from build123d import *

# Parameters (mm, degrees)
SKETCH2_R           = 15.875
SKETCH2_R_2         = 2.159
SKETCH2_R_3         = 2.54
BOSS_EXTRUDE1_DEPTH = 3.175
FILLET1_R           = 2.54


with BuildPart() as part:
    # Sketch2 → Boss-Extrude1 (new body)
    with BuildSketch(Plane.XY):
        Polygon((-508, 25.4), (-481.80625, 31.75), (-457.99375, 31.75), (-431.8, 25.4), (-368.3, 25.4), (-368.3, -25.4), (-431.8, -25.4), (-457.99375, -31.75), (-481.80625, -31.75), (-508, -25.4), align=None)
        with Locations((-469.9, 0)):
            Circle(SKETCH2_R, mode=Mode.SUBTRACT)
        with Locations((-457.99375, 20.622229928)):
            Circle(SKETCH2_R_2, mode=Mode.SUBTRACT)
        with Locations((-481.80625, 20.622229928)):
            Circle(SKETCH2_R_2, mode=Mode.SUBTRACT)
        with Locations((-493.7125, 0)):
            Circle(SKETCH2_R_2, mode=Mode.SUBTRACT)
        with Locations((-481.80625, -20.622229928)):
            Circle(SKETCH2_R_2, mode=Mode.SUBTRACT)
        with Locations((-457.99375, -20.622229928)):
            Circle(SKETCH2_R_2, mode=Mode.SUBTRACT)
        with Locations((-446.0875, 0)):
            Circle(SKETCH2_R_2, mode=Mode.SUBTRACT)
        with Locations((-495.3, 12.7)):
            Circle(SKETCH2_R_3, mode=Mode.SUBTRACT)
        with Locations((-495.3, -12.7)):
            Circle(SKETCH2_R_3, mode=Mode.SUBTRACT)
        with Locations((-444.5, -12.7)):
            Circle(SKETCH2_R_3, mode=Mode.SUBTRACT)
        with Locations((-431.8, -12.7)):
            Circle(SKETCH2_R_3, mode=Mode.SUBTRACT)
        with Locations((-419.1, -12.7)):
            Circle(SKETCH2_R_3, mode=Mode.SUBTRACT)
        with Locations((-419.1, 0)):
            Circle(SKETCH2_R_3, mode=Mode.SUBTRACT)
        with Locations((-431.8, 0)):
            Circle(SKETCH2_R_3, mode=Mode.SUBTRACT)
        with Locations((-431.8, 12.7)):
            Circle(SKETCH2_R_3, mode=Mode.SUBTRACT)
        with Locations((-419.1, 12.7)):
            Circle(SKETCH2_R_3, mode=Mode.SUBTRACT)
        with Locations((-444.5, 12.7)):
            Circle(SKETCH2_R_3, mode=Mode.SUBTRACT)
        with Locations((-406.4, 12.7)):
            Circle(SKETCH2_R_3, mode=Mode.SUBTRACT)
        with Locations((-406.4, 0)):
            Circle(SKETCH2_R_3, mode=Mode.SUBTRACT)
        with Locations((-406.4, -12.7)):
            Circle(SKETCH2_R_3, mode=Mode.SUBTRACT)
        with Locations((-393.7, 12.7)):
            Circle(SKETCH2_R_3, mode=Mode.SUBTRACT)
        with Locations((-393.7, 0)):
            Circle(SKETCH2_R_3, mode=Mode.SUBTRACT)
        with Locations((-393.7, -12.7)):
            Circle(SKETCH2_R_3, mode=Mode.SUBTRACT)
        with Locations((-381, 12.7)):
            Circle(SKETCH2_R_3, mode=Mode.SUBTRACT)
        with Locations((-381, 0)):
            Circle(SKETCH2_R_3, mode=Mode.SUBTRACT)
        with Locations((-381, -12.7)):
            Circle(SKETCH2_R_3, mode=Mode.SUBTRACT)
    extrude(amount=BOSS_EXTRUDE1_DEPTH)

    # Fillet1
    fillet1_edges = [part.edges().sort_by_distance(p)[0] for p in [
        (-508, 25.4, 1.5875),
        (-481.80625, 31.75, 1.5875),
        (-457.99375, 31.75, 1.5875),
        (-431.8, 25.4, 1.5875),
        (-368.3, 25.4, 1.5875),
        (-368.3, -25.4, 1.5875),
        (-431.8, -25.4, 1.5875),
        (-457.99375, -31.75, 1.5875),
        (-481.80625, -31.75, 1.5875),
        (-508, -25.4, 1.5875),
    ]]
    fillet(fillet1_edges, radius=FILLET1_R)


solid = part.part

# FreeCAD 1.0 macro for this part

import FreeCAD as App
import Part
import Sketcher
Q = App.Units.Quantity


def edges_at(feature, points):
    """Names of the edges that pass closest to the given points."""
    edges = feature.Shape.Edges
    near = lambda p: min(range(len(edges)), key=lambda i: edges[i].distToShape(Part.Vertex(*p))[0])
    return sorted({f"Edge{near(p) + 1}" for p in points})

doc = App.newDocument("Part")
body = doc.addObject("PartDesign::Body", "Body")

# Sketch on XY plane
sketch1 = doc.addObject("Sketcher::SketchObject", "Sketch")
body.addObject(sketch1)
sketch1.AttachmentSupport = (doc.XY_Plane, [""])
sketch1.MapMode = "FlatFace"
sketch1.addGeometry([
    Part.LineSegment(App.Vector(-481.80625, 31.75, 0), App.Vector(-508, 25.4, 0)),  # 0
    Part.LineSegment(App.Vector(-508, 25.4, 0), App.Vector(-508, -25.4, 0)),  # 1
    Part.LineSegment(App.Vector(-508, -25.4, 0), App.Vector(-481.80625, -31.75, 0)),  # 2
    Part.LineSegment(App.Vector(-481.80625, -31.75, 0), App.Vector(-457.99375, -31.75, 0)),  # 3
    Part.LineSegment(App.Vector(-457.99375, -31.75, 0), App.Vector(-431.8, -25.4, 0)),  # 4
    Part.LineSegment(App.Vector(-431.8, -25.4, 0), App.Vector(-368.3, -25.4, 0)),  # 5
    Part.LineSegment(App.Vector(-368.3, -25.4, 0), App.Vector(-368.3, 25.4, 0)),  # 6
    Part.LineSegment(App.Vector(-368.3, 25.4, 0), App.Vector(-431.8, 25.4, 0)),  # 7
    Part.LineSegment(App.Vector(-431.8, 25.4, 0), App.Vector(-457.99375, 31.75, 0)),  # 8
    Part.LineSegment(App.Vector(-457.99375, 31.75, 0), App.Vector(-481.80625, 31.75, 0)),  # 9
    Part.Circle(App.Vector(-381, -12.7, 0), App.Vector(0, 0, 1), 2.54),  # 10
    Part.Circle(App.Vector(-393.7, -12.7, 0), App.Vector(0, 0, 1), 2.54),  # 11
    Part.Circle(App.Vector(-406.4, -12.7, 0), App.Vector(0, 0, 1), 2.54),  # 12
    Part.Circle(App.Vector(-419.1, -12.7, 0), App.Vector(0, 0, 1), 2.54),  # 13
    Part.Circle(App.Vector(-431.8, -12.7, 0), App.Vector(0, 0, 1), 2.54),  # 14
    Part.Circle(App.Vector(-457.99375, -20.62223, 0), App.Vector(0, 0, 1), 2.159),  # 15
    Part.Circle(App.Vector(-444.5, -12.7, 0), App.Vector(0, 0, 1), 2.54),  # 16
    Part.Circle(App.Vector(-481.80625, -20.62223, 0), App.Vector(0, 0, 1), 2.159),  # 17
    Part.Circle(App.Vector(-495.3, -12.7, 0), App.Vector(0, 0, 1), 2.54),  # 18
    Part.Circle(App.Vector(-381, 0, 0), App.Vector(0, 0, 1), 2.54),  # 19
    Part.Circle(App.Vector(-393.7, 0, 0), App.Vector(0, 0, 1), 2.54),  # 20
    Part.Circle(App.Vector(-406.4, 0, 0), App.Vector(0, 0, 1), 2.54),  # 21
    Part.Circle(App.Vector(-419.1, 0, 0), App.Vector(0, 0, 1), 2.54),  # 22
    Part.Circle(App.Vector(-431.8, 0, 0), App.Vector(0, 0, 1), 2.54),  # 23
    Part.Circle(App.Vector(-381, 12.7, 0), App.Vector(0, 0, 1), 2.54),  # 24
    Part.Circle(App.Vector(-393.7, 12.7, 0), App.Vector(0, 0, 1), 2.54),  # 25
    Part.Circle(App.Vector(-406.4, 12.7, 0), App.Vector(0, 0, 1), 2.54),  # 26
    Part.Circle(App.Vector(-419.1, 12.7, 0), App.Vector(0, 0, 1), 2.54),  # 27
    Part.Circle(App.Vector(-431.8, 12.7, 0), App.Vector(0, 0, 1), 2.54),  # 28
    Part.Circle(App.Vector(-446.0875, 0, 0), App.Vector(0, 0, 1), 2.159),  # 29
    Part.Circle(App.Vector(-469.9, 0, 0), App.Vector(0, 0, 1), 15.875),  # 30
    Part.Circle(App.Vector(-493.7125, 0, 0), App.Vector(0, 0, 1), 2.159),  # 31
    Part.Circle(App.Vector(-444.5, 12.7, 0), App.Vector(0, 0, 1), 2.54),  # 32
    Part.Circle(App.Vector(-457.99375, 20.62223, 0), App.Vector(0, 0, 1), 2.159),  # 33
    Part.Circle(App.Vector(-495.3, 12.7, 0), App.Vector(0, 0, 1), 2.54),  # 34
    Part.Circle(App.Vector(-481.80625, 20.62223, 0), App.Vector(0, 0, 1), 2.159),  # 35
], False)
sketch1.addConstraint([
    Sketcher.Constraint("Coincident", 0, 2, 1, 1),
    Sketcher.Constraint("Coincident", 1, 2, 2, 1),
    Sketcher.Constraint("Coincident", 2, 2, 3, 1),
    Sketcher.Constraint("Coincident", 3, 2, 4, 1),
    Sketcher.Constraint("Coincident", 4, 2, 5, 1),
    Sketcher.Constraint("Coincident", 5, 2, 6, 1),
    Sketcher.Constraint("Coincident", 6, 2, 7, 1),
    Sketcher.Constraint("Coincident", 7, 2, 8, 1),
    Sketcher.Constraint("Coincident", 8, 2, 9, 1),
    Sketcher.Constraint("Coincident", 9, 2, 0, 1),
    Sketcher.Constraint("Vertical", 1),
    Sketcher.Constraint("Horizontal", 3),
    Sketcher.Constraint("Horizontal", 5),
    Sketcher.Constraint("Vertical", 6),
    Sketcher.Constraint("Horizontal", 7),
    Sketcher.Constraint("Horizontal", 9),
    Sketcher.Constraint("Equal", 10, 11),
    Sketcher.Constraint("Equal", 11, 12),
    Sketcher.Constraint("Equal", 12, 13),
    Sketcher.Constraint("Equal", 13, 14),
    Sketcher.Constraint("Equal", 14, 16),
    Sketcher.Constraint("Equal", 15, 17),
    Sketcher.Constraint("Equal", 16, 18),
    Sketcher.Constraint("Equal", 18, 19),
    Sketcher.Constraint("Equal", 19, 20),
    Sketcher.Constraint("Equal", 20, 21),
    Sketcher.Constraint("Equal", 21, 22),
    Sketcher.Constraint("Equal", 22, 23),
    Sketcher.Constraint("Equal", 23, 24),
    Sketcher.Constraint("Equal", 24, 25),
    Sketcher.Constraint("Equal", 25, 26),
    Sketcher.Constraint("Equal", 26, 27),
    Sketcher.Constraint("Equal", 27, 28),
    Sketcher.Constraint("Equal", 17, 29),
    Sketcher.Constraint("Equal", 29, 31),
    Sketcher.Constraint("Equal", 28, 32),
    Sketcher.Constraint("Equal", 31, 33),
    Sketcher.Constraint("Equal", 32, 34),
    Sketcher.Constraint("Equal", 33, 35),
    Sketcher.Constraint("Symmetric", 10, 3, 24, 3, -1),
    Sketcher.Constraint("Symmetric", 11, 3, 25, 3, -1),
    Sketcher.Constraint("Symmetric", 12, 3, 26, 3, -1),
    Sketcher.Constraint("Symmetric", 13, 3, 27, 3, -1),
    Sketcher.Constraint("Symmetric", 14, 3, 28, 3, -1),
    Sketcher.Constraint("Symmetric", 16, 3, 32, 3, -1),
    Sketcher.Constraint("Symmetric", 15, 3, 33, 3, -1),
    Sketcher.Constraint("Symmetric", 18, 3, 34, 3, -1),
    Sketcher.Constraint("Symmetric", 17, 3, 35, 3, -1),
    Sketcher.Constraint("Symmetric", 4, 2, 7, 2, -1),
    Sketcher.Constraint("Symmetric", 3, 2, 8, 2, -1),
    Sketcher.Constraint("PointOnObject", 19, 3, -1),
    Sketcher.Constraint("PointOnObject", 20, 3, -1),
    Sketcher.Constraint("PointOnObject", 21, 3, -1),
    Sketcher.Constraint("PointOnObject", 22, 3, -1),
    Sketcher.Constraint("PointOnObject", 23, 3, -1),
    Sketcher.Constraint("PointOnObject", 29, 3, -1),
    Sketcher.Constraint("PointOnObject", 30, 3, -1),
    Sketcher.Constraint("PointOnObject", 31, 3, -1),
    Sketcher.Constraint("Parallel", 0, 4),
    Sketcher.Constraint("Parallel", 2, 8),
    Sketcher.Constraint("Horizontal", 10, 3, 11, 3),
    Sketcher.Constraint("Horizontal", 11, 3, 12, 3),
    Sketcher.Constraint("Horizontal", 12, 3, 13, 3),
    Sketcher.Constraint("Horizontal", 13, 3, 14, 3),
    Sketcher.Constraint("Horizontal", 14, 3, 16, 3),
    Sketcher.Constraint("Horizontal", 15, 3, 17, 3),
    Sketcher.Constraint("Horizontal", 16, 3, 18, 3),
    Sketcher.Constraint("Horizontal", 1, 2, 4, 2),
    Sketcher.Constraint("Horizontal", 0, 2, 6, 2),
    Sketcher.Constraint("Vertical", 10, 3, 19, 3),
    Sketcher.Constraint("Vertical", 11, 3, 20, 3),
    Sketcher.Constraint("Vertical", 12, 3, 21, 3),
    Sketcher.Constraint("Vertical", 13, 3, 22, 3),
    Sketcher.Constraint("Vertical", 14, 3, 23, 3),
    Sketcher.Constraint("Vertical", 35, 3, 2, 2),
    Sketcher.Constraint("Vertical", 33, 3, 3, 2),
    Sketcher.Constraint("Vertical", 28, 3, 4, 2),
    Sketcher.Constraint("Diameter", 10, Q("0.2 in")),
    Sketcher.Constraint("Diameter", 15, Q("0.17 in")),
    Sketcher.Constraint("Diameter", 30, Q("1.25 in")),
    Sketcher.Constraint("DistanceY", 1, 2, 1, 1, Q("2 in")),
    Sketcher.Constraint("DistanceX", 5, 1, 5, 2, Q("2.5 in")),
    Sketcher.Constraint("DistanceX", 10, 3, -1, 1, Q("15 in")),
    Sketcher.Constraint("DistanceX", 12, 3, -1, 1, Q("16 in")),
    Sketcher.Constraint("DistanceX", 14, 3, -1, 1, Q("17 in")),
    Sketcher.Constraint("DistanceX", 0, 2, -1, 1, Q("20 in")),
    Sketcher.Constraint("DistanceX", 13, 3, 11, 3, Q("1 in")),
    Sketcher.Constraint("DistanceX", 16, 3, 13, 3, Q("1 in")),
    Sketcher.Constraint("DistanceX", 18, 3, 16, 3, Q("2 in")),
    Sketcher.Constraint("DistanceY", 10, 3, 24, 3, Q("1 in")),
    Sketcher.Constraint("DistanceX", 30, 3, 16, 3, Q("1 in")),
    Sketcher.Constraint("DistanceX", 11, 3, 5, 2, Q("1 in")),
    Sketcher.Constraint("DistanceX", 3, 1, 3, 2, Q("0.9375 in")),
    Sketcher.Constraint("DistanceY", 2, 2, -1, 1, Q("1.25 in")),
    Sketcher.Constraint("DistanceX", 29, 3, -1, 1, Q("17.5625 in")),
    Sketcher.Constraint("DistanceX", 31, 3, -1, 1, Q("19.4375 in")),
    Sketcher.Constraint("DistanceY", 15, 3, -1, 1, Q("20.62223 mm")),
])
pad1 = doc.addObject("PartDesign::Pad", "Pad")
body.addObject(pad1)
pad1.Profile = sketch1
pad1.Length = Q("0.125 in")
doc.recompute()

fillet = doc.addObject("PartDesign::Fillet", "Fillet")
body.addObject(fillet)
fillet.Base = (pad1, edges_at(pad1, [
    (-508, 25.4, 1.587),
    (-481.806, 31.75, 1.587),
    (-457.994, 31.75, 1.587),
    (-431.8, 25.4, 1.587),
    (-368.3, 25.4, 1.587),
    (-368.3, -25.4, 1.587),
    (-431.8, -25.4, 1.587),
    (-457.994, -31.75, 1.587),
    (-481.806, -31.75, 1.587),
    (-508, -25.4, 1.587),
]))
fillet.Radius = Q("0.1 in")

doc.recompute()
